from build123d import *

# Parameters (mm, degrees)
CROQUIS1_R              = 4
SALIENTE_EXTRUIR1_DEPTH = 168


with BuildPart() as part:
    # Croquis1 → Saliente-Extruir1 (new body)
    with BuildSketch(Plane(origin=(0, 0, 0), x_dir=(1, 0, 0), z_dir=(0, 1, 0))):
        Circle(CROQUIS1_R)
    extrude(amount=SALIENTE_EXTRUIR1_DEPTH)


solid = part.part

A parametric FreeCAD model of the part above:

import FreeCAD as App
import Part
import Sketcher

doc = App.newDocument("Part")
body = doc.addObject("PartDesign::Body", "Body")

sketch1 = doc.addObject("Sketcher::SketchObject", "Sketch")
body.addObject(sketch1)
sketch1.AttachmentSupport = (doc.XZ_Plane, [""])
sketch1.MapMode = "FlatFace"
sketch1.addGeometry(Part.Circle(App.Vector(0, 0, 0), App.Vector(0, 0, 1), 4), False)
sketch1.addConstraint([
    Sketcher.Constraint("Coincident", 0, 3, -1, 1),
    Sketcher.Constraint("Diameter", 0, 8.0),
])
pad1 = doc.addObject("PartDesign::Pad", "Pad")
body.addObject(pad1)
pad1.Profile = sketch1
pad1.Length = 168
pad1.Reversed = True

doc.recompute()
